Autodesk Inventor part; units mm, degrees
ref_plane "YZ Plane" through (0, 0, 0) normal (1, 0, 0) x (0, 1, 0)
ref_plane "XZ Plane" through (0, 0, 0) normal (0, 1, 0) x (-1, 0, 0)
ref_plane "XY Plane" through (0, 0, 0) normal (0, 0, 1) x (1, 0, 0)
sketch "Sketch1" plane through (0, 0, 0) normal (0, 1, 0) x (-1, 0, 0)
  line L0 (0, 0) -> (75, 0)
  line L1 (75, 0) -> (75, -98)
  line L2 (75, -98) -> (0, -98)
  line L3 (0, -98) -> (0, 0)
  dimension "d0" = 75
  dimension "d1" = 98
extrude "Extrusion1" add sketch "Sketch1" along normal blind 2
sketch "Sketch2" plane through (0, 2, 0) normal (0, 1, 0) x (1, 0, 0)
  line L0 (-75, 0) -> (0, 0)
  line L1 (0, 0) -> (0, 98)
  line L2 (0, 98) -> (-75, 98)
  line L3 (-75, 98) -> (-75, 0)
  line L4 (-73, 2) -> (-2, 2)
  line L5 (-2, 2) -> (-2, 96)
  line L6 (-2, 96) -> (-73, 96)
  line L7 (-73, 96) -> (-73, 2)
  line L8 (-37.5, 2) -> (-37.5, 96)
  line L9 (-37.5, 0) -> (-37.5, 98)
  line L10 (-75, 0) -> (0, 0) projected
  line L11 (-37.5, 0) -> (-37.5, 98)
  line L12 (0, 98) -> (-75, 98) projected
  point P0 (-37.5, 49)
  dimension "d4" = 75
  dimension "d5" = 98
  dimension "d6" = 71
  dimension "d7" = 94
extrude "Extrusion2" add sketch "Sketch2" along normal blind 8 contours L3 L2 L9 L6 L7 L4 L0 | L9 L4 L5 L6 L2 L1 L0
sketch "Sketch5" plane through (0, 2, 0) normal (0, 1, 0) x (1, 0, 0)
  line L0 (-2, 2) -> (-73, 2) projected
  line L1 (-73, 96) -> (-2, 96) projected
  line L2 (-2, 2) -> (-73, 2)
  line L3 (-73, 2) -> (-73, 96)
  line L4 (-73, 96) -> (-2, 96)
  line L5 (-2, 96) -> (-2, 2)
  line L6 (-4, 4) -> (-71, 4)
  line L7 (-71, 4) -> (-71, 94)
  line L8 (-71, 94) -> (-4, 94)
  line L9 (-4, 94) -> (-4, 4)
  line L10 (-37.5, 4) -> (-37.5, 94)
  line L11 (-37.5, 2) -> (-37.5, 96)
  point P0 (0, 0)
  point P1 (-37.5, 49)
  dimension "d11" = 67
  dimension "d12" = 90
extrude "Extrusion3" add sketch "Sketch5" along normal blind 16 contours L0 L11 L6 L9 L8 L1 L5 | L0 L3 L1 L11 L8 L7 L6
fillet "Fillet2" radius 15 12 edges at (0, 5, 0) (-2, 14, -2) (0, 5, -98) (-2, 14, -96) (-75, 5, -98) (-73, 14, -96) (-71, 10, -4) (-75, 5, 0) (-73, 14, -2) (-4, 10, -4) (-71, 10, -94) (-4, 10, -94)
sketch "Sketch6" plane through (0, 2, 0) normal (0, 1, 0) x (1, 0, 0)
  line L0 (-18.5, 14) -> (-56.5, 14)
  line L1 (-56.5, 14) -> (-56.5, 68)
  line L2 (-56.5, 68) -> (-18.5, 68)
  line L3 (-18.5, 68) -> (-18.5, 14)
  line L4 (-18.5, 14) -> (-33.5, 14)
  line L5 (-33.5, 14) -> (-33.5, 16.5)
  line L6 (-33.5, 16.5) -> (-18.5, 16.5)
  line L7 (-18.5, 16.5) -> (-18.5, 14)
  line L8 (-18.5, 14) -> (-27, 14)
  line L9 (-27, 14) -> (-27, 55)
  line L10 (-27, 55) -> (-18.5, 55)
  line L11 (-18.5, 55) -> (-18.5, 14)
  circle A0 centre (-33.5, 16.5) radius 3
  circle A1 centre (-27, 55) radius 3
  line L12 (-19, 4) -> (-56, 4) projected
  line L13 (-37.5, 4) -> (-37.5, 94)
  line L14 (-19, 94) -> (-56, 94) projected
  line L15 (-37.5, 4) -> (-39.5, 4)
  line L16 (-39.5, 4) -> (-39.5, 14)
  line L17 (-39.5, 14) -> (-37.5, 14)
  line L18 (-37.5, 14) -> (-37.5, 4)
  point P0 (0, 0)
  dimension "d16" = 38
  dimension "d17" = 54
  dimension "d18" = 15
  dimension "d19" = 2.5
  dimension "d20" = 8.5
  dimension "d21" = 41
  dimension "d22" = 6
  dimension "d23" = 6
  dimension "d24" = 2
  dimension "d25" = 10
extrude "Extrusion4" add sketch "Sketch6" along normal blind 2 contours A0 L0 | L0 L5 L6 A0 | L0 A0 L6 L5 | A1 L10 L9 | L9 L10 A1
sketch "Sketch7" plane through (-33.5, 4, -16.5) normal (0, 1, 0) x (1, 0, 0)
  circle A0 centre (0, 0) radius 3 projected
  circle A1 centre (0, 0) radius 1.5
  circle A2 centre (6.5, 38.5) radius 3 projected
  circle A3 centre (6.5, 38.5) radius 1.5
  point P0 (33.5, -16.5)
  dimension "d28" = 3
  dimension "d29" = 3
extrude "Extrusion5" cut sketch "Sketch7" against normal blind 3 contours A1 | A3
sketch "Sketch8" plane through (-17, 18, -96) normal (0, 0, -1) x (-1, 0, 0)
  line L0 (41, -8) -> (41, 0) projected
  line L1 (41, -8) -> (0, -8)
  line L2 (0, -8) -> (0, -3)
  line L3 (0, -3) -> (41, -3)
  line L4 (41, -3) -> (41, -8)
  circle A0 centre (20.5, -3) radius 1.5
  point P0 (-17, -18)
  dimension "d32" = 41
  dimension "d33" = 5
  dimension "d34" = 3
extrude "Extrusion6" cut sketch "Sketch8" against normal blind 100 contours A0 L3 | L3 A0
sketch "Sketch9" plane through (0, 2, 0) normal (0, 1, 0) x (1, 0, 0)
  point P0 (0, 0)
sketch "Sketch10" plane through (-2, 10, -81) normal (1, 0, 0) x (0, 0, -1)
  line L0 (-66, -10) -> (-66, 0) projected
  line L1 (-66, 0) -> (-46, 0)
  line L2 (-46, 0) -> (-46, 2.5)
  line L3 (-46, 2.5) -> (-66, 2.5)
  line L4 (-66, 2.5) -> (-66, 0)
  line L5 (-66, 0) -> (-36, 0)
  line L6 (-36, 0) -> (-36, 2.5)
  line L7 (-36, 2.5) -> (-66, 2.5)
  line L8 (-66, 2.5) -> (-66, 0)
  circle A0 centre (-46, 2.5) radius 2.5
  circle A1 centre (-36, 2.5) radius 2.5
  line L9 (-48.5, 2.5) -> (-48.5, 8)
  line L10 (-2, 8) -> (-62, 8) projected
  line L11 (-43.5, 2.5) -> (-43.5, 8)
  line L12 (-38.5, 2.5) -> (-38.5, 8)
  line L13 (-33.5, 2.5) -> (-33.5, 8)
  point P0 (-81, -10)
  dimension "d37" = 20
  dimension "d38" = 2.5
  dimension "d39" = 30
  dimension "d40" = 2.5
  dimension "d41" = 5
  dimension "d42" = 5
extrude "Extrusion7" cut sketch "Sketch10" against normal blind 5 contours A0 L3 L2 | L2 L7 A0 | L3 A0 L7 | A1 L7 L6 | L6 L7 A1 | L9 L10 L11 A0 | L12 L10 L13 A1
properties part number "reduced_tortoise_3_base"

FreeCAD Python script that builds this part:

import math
import FreeCAD as App
import Part
import Sketcher
Q = App.Units.Quantity


def edges_at(feature, points):
    """Names of the edges that pass closest to the given points."""
    edges = feature.Shape.Edges
    near = lambda p: min(range(len(edges)), key=lambda i: edges[i].distToShape(Part.Vertex(*p))[0])
    return sorted({f"Edge{near(p) + 1}" for p in points})

doc = App.newDocument("Part")
params = doc.addObject("Spreadsheet::Sheet", "Params")
for row, (alias, value) in enumerate([
    ("sketch1_width", "75 mm"),
    ("sketch1_height", "98 mm"),
    ("pad1_length", "2 mm"),
    ("sketch2_width", "75 mm"),
    ("sketch2_width2", "71 mm"),
    ("sketch2_height", "98 mm"),
    ("sketch2_height2", "94 mm"),
    ("pad2_length", "8 mm"),
    ("sketch3_width", "67 mm"),
    ("sketch3_height", "90 mm"),
    ("sketch3_width2", "71 mm"),
    ("sketch3_height2", "94 mm"),
    ("pad3_length", "16 mm"),
    ("fillet_radius", "15 mm"),
    ("sketch4_diameter", "6 mm"),
    ("pad4_length", "2 mm"),
    ("sketch5_diameter", "3 mm"),
    ("pocket1_length", "3 mm"),
    ("sketch6_diameter", "3 mm"),
    ("pocket2_length", "100 mm"),
    ("sketch7_radius", "2.5 mm"),
    ("sketch7_width", "5.5 mm"),
    ("pocket3_length", "5 mm"),
], start=1):
    params.set(f"A{row}", alias)
    params.set(f"B{row}", "=" + value)
    params.setAlias(f"B{row}", alias)

body = doc.addObject("PartDesign::Body", "Body")

sketch1 = doc.addObject("Sketcher::SketchObject", "Sketch")
body.addObject(sketch1)
sketch1.AttachmentSupport = (doc.XZ_Plane, [""])
sketch1.MapMode = "FlatFace"
sketch1.addGeometry([
    Part.LineSegment(App.Vector(-75, 0, 0), App.Vector(0, 0, 0)),
    Part.LineSegment(App.Vector(0, 0, 0), App.Vector(0, -98, 0)),
    Part.LineSegment(App.Vector(0, -98, 0), App.Vector(-75, -98, 0)),
    Part.LineSegment(App.Vector(-75, -98, 0), App.Vector(-75, 0, 0)),
], False)
sketch1.addConstraint([
    Sketcher.Constraint("Coincident", 0, 2, 1, 1),
    Sketcher.Constraint("Coincident", 1, 2, 2, 1),
    Sketcher.Constraint("Coincident", 2, 2, 3, 1),
    Sketcher.Constraint("Coincident", 3, 2, 0, 1),
    Sketcher.Constraint("Horizontal", 0),
    Sketcher.Constraint("Vertical", 1),
    Sketcher.Constraint("Horizontal", 2),
    Sketcher.Constraint("Vertical", 3),
    Sketcher.Constraint("Coincident", 0, 2, -1, 1),
    Sketcher.Constraint("DistanceX", 0, 1, 0, 2, Q("75 mm")),
    Sketcher.Constraint("DistanceY", 1, 2, 1, 1, Q("98 mm")),
])
sketch1.setExpression("Constraints[9]", "Params.sketch1_width")
sketch1.setExpression("Constraints[10]", "Params.sketch1_height")
pad1 = doc.addObject("PartDesign::Pad", "Pad")
body.addObject(pad1)
pad1.Profile = sketch1
pad1.setExpression("Length", "Params.pad1_length")
pad1.Reversed = True

sketch2 = doc.addObject("Sketcher::SketchObject", "Sketch001")
body.addObject(sketch2)
sketch2.AttachmentSupport = (doc.XZ_Plane, [""])
sketch2.MapMode = "FlatFace"
sketch2.AttachmentOffset = App.Placement(App.Vector(0, 0, -2), App.Rotation())
sketch2.addGeometry([
    Part.LineSegment(App.Vector(-75, -98, 0), App.Vector(-75, 0, 0)),
    Part.LineSegment(App.Vector(-75, 0, 0), App.Vector(0, 0, 0)),
    Part.LineSegment(App.Vector(0, 0, 0), App.Vector(0, -98, 0)),
    Part.LineSegment(App.Vector(0, -98, 0), App.Vector(-75, -98, 0)),
    Part.LineSegment(App.Vector(-73, -96, 0), App.Vector(-2, -96, 0)),
    Part.LineSegment(App.Vector(-2, -96, 0), App.Vector(-2, -2, 0)),
    Part.LineSegment(App.Vector(-2, -2, 0), App.Vector(-73, -2, 0)),
    Part.LineSegment(App.Vector(-73, -2, 0), App.Vector(-73, -96, 0)),
], False)
sketch2.addConstraint([
    Sketcher.Constraint("Coincident", 0, 2, 1, 1),
    Sketcher.Constraint("Coincident", 1, 2, 2, 1),
    Sketcher.Constraint("Coincident", 2, 2, 3, 1),
    Sketcher.Constraint("Coincident", 3, 2, 0, 1),
    Sketcher.Constraint("Coincident", 4, 2, 5, 1),
    Sketcher.Constraint("Coincident", 5, 2, 6, 1),
    Sketcher.Constraint("Coincident", 6, 2, 7, 1),
    Sketcher.Constraint("Coincident", 7, 2, 4, 1),
    Sketcher.Constraint("Vertical", 0),
    Sketcher.Constraint("Horizontal", 1),
    Sketcher.Constraint("Vertical", 2),
    Sketcher.Constraint("Horizontal", 3),
    Sketcher.Constraint("Horizontal", 4),
    Sketcher.Constraint("Vertical", 5),
    Sketcher.Constraint("Horizontal", 6),
    Sketcher.Constraint("Vertical", 7),
    Sketcher.Constraint("Coincident", 1, 2, -1, 1),
    Sketcher.Constraint("DistanceX", 1, 1, 1, 2, Q("75 mm")),
    Sketcher.Constraint("DistanceX", 4, 1, 4, 2, Q("71 mm")),
    Sketcher.Constraint("DistanceY", 0, 1, 0, 2, Q("98 mm")),
    Sketcher.Constraint("DistanceY", 5, 1, 5, 2, Q("94 mm")),
    Sketcher.Constraint("DistanceX", 4, 2, -1, 1, Q("2 mm")),
    Sketcher.Constraint("DistanceY", 4, 2, -1, 1, Q("96 mm")),
])
sketch2.setExpression("Constraints[17]", "Params.sketch2_width")
sketch2.setExpression("Constraints[18]", "Params.sketch2_width2")
sketch2.setExpression("Constraints[19]", "Params.sketch2_height")
sketch2.setExpression("Constraints[20]", "Params.sketch2_height2")
pad2 = doc.addObject("PartDesign::Pad", "Pad001")
body.addObject(pad2)
pad2.Profile = sketch2
pad2.setExpression("Length", "Params.pad2_length")
pad2.Reversed = True

sketch3 = doc.addObject("Sketcher::SketchObject", "Sketch002")
body.addObject(sketch3)
sketch3.AttachmentSupport = (doc.XZ_Plane, [""])
sketch3.MapMode = "FlatFace"
sketch3.AttachmentOffset = App.Placement(App.Vector(0, 0, -2), App.Rotation())
sketch3.addGeometry([
    Part.LineSegment(App.Vector(-2, -2, 0), App.Vector(-2, -96, 0)),
    Part.LineSegment(App.Vector(-2, -96, 0), App.Vector(-73, -96, 0)),
    Part.LineSegment(App.Vector(-73, -96, 0), App.Vector(-73, -2, 0)),
    Part.LineSegment(App.Vector(-73, -2, 0), App.Vector(-2, -2, 0)),
    Part.LineSegment(App.Vector(-4, -4, 0), App.Vector(-71, -4, 0)),
    Part.LineSegment(App.Vector(-71, -4, 0), App.Vector(-71, -94, 0)),
    Part.LineSegment(App.Vector(-71, -94, 0), App.Vector(-4, -94, 0)),
    Part.LineSegment(App.Vector(-4, -94, 0), App.Vector(-4, -4, 0)),
], False)
sketch3.addConstraint([
    Sketcher.Constraint("Coincident", 0, 2, 1, 1),
    Sketcher.Constraint("Coincident", 1, 2, 2, 1),
    Sketcher.Constraint("Coincident", 2, 2, 3, 1),
    Sketcher.Constraint("Coincident", 3, 2, 0, 1),
    Sketcher.Constraint("Coincident", 4, 2, 5, 1),
    Sketcher.Constraint("Coincident", 5, 2, 6, 1),
    Sketcher.Constraint("Coincident", 6, 2, 7, 1),
    Sketcher.Constraint("Coincident", 7, 2, 4, 1),
    Sketcher.Constraint("Vertical", 0),
    Sketcher.Constraint("Horizontal", 1),
    Sketcher.Constraint("Vertical", 2),
    Sketcher.Constraint("Horizontal", 3),
    Sketcher.Constraint("Horizontal", 4),
    Sketcher.Constraint("Vertical", 5),
    Sketcher.Constraint("Horizontal", 6),
    Sketcher.Constraint("Vertical", 7),
    Sketcher.Constraint("DistanceX", 4, 2, 4, 1, Q("67 mm")),
    Sketcher.Constraint("DistanceY", 5, 2, 5, 1, Q("90 mm")),
    Sketcher.Constraint("DistanceX", 1, 2, 1, 1, Q("71 mm")),
    Sketcher.Constraint("DistanceY", 0, 2, 0, 1, Q("94 mm")),
    Sketcher.Constraint("DistanceX", 0, 2, -1, 1, Q("2 mm")),
    Sketcher.Constraint("DistanceY", 0, 2, -1, 1, Q("96 mm")),
    Sketcher.Constraint("DistanceX", 4, 2, -1, 1, Q("71 mm")),
    Sketcher.Constraint("DistanceY", 4, 2, -1, 1, Q("4 mm")),
])
sketch3.setExpression("Constraints[16]", "Params.sketch3_width")
sketch3.setExpression("Constraints[17]", "Params.sketch3_height")
sketch3.setExpression("Constraints[18]", "Params.sketch3_width2")
sketch3.setExpression("Constraints[19]", "Params.sketch3_height2")
pad3 = doc.addObject("PartDesign::Pad", "Pad002")
body.addObject(pad3)
pad3.Profile = sketch3
pad3.setExpression("Length", "Params.pad3_length")
pad3.Reversed = True
doc.recompute()

fillet = doc.addObject("PartDesign::Fillet", "Fillet")
body.addObject(fillet)
fillet.Base = (pad3, edges_at(pad3, [
    (0, 5, 0),
    (-2, 14, -2),
    (0, 5, -98),
    (-2, 14, -96),
    (-75, 5, -98),
    (-73, 14, -96),
    (-71, 10, -4),
    (-75, 5, 0),
    (-73, 14, -2),
    (-4, 10, -4),
    (-71, 10, -94),
    (-4, 10, -94),
]))
fillet.setExpression("Radius", "Params.fillet_radius")

sketch4 = doc.addObject("Sketcher::SketchObject", "Sketch003")
body.addObject(sketch4)
sketch4.AttachmentSupport = (doc.XZ_Plane, [""])
sketch4.MapMode = "FlatFace"
sketch4.AttachmentOffset = App.Placement(App.Vector(0, 0, -2), App.Rotation())
sketch4.addGeometry([
    Part.Circle(App.Vector(-33.5, -16.5, 0), App.Vector(0, 0, 1), 3),
    Part.Circle(App.Vector(-27, -55, 0), App.Vector(0, 0, 1), 3),
], False)
sketch4.addConstraint([
    Sketcher.Constraint("Equal", 0, 1),
    Sketcher.Constraint("Diameter", 0, Q("6 mm")),
    Sketcher.Constraint("DistanceX", 1, 3, -1, 1, Q("27 mm")),
    Sketcher.Constraint("DistanceY", 1, 3, -1, 1, Q("55 mm")),
    Sketcher.Constraint("DistanceX", 0, 3, -1, 1, Q("33.5 mm")),
    Sketcher.Constraint("DistanceY", 0, 3, -1, 1, Q("16.5 mm")),
])
sketch4.setExpression("Constraints[1]", "Params.sketch4_diameter")
pad4 = doc.addObject("PartDesign::Pad", "Pad003")
body.addObject(pad4)
pad4.Profile = sketch4
pad4.setExpression("Length", "Params.pad4_length")
pad4.Reversed = True

sketch5 = doc.addObject("Sketcher::SketchObject", "Sketch004")
body.addObject(sketch5)
sketch5.AttachmentSupport = (doc.XZ_Plane, [""])
sketch5.MapMode = "FlatFace"
sketch5.AttachmentOffset = App.Placement(App.Vector(0, 0, -4), App.Rotation())
sketch5.addGeometry([
    Part.Circle(App.Vector(-33.5, -16.5, 0), App.Vector(0, 0, 1), 1.5),
    Part.Circle(App.Vector(-27, -55, 0), App.Vector(0, 0, 1), 1.5),
], False)
sketch5.addConstraint([
    Sketcher.Constraint("Equal", 0, 1),
    Sketcher.Constraint("Diameter", 0, Q("3 mm")),
    Sketcher.Constraint("DistanceX", 1, 3, -1, 1, Q("27 mm")),
    Sketcher.Constraint("DistanceY", 1, 3, -1, 1, Q("55 mm")),
    Sketcher.Constraint("DistanceX", 0, 3, -1, 1, Q("33.5 mm")),
    Sketcher.Constraint("DistanceY", 0, 3, -1, 1, Q("16.5 mm")),
])
sketch5.setExpression("Constraints[1]", "Params.sketch5_diameter")
pocket1 = doc.addObject("PartDesign::Pocket", "Pocket")
body.addObject(pocket1)
pocket1.Profile = sketch5
pocket1.setExpression("Length", "Params.pocket1_length")
pocket1.Reversed = True

sketch6 = doc.addObject("Sketcher::SketchObject", "Sketch005")
body.addObject(sketch6)
sketch6.AttachmentSupport = (doc.XY_Plane, [""])
sketch6.MapMode = "FlatFace"
sketch6.AttachmentOffset = App.Placement(App.Vector(0, 0, -96), App.Rotation())
sketch6.addGeometry(Part.Circle(App.Vector(-37.5, 15, 0), App.Vector(0, 0, 1), 1.5), False)
sketch6.addConstraint([
    Sketcher.Constraint("Diameter", 0, Q("3 mm")),
    Sketcher.Constraint("DistanceY", -1, 1, 0, 3, Q("15 mm")),
    Sketcher.Constraint("DistanceX", 0, 3, -1, 1, Q("37.5 mm")),
])
sketch6.setExpression("Constraints[0]", "Params.sketch6_diameter")
pocket2 = doc.addObject("PartDesign::Pocket", "Pocket001")
body.addObject(pocket2)
pocket2.Profile = sketch6
pocket2.setExpression("Length", "Params.pocket2_length")
pocket2.Reversed = True

sketch7 = doc.addObject("Sketcher::SketchObject", "Sketch006")
body.addObject(sketch7)
sketch7.AttachmentSupport = (doc.YZ_Plane, [""])
sketch7.MapMode = "FlatFace"
sketch7.AttachmentOffset = App.Placement(App.Vector(0, 0, -2), App.Rotation())
sketch7.addGeometry([
    Part.ArcOfCircle(Part.Circle(App.Vector(12.5, -35, 0), App.Vector(0, 0, 1), 2.5), math.radians(90), math.radians(270)),
    Part.LineSegment(App.Vector(12.5, -37.5, 0), App.Vector(18, -37.5, 0)),
    Part.LineSegment(App.Vector(18, -37.5, 0), App.Vector(18, -32.5, 0)),
    Part.LineSegment(App.Vector(18, -32.5, 0), App.Vector(12.5, -32.5, 0)),
    Part.ArcOfCircle(Part.Circle(App.Vector(12.5, -45, 0), App.Vector(0, 0, 1), 2.5), math.radians(90), math.radians(270)),
    Part.LineSegment(App.Vector(12.5, -47.5, 0), App.Vector(18, -47.5, 0)),
    Part.LineSegment(App.Vector(18, -47.5, 0), App.Vector(18, -42.5, 0)),
    Part.LineSegment(App.Vector(18, -42.5, 0), App.Vector(12.5, -42.5, 0)),
], False)
sketch7.addConstraint([
    Sketcher.Constraint("Tangent", 0, 2, 1, 1),
    Sketcher.Constraint("Coincident", 1, 2, 2, 1),
    Sketcher.Constraint("Coincident", 2, 2, 3, 1),
    Sketcher.Constraint("Tangent", 3, 2, 0, 1),
    Sketcher.Constraint("Tangent", 4, 2, 5, 1),
    Sketcher.Constraint("Coincident", 5, 2, 6, 1),
    Sketcher.Constraint("Coincident", 6, 2, 7, 1),
    Sketcher.Constraint("Tangent", 7, 2, 4, 1),
    Sketcher.Constraint("Horizontal", 1),
    Sketcher.Constraint("Vertical", 2),
    Sketcher.Constraint("Horizontal", 3),
    Sketcher.Constraint("Horizontal", 5),
    Sketcher.Constraint("Vertical", 6),
    Sketcher.Constraint("Horizontal", 7),
    Sketcher.Constraint("Equal", 0, 4),
    Sketcher.Constraint("Vertical", 0, 3, 4, 3),
    Sketcher.Constraint("Vertical", 2, 2, 5, 2),
    Sketcher.Constraint("Radius", 0, Q("2.5 mm")),
    Sketcher.Constraint("DistanceY", 6, 2, 1, 2, Q("5 mm")),
    Sketcher.Constraint("DistanceX", 1, 1, 1, 2, Q("5.5 mm")),
    Sketcher.Constraint("DistanceY", 0, 3, -1, 1, Q("35 mm")),
    Sketcher.Constraint("DistanceX", -1, 1, 1, 2, Q("18 mm")),
])
sketch7.setExpression("Constraints[17]", "Params.sketch7_radius")
sketch7.setExpression("Constraints[19]", "Params.sketch7_width")
pocket3 = doc.addObject("PartDesign::Pocket", "Pocket002")
body.addObject(pocket3)
pocket3.Profile = sketch7
pocket3.setExpression("Length", "Params.pocket3_length")

doc.recompute()
